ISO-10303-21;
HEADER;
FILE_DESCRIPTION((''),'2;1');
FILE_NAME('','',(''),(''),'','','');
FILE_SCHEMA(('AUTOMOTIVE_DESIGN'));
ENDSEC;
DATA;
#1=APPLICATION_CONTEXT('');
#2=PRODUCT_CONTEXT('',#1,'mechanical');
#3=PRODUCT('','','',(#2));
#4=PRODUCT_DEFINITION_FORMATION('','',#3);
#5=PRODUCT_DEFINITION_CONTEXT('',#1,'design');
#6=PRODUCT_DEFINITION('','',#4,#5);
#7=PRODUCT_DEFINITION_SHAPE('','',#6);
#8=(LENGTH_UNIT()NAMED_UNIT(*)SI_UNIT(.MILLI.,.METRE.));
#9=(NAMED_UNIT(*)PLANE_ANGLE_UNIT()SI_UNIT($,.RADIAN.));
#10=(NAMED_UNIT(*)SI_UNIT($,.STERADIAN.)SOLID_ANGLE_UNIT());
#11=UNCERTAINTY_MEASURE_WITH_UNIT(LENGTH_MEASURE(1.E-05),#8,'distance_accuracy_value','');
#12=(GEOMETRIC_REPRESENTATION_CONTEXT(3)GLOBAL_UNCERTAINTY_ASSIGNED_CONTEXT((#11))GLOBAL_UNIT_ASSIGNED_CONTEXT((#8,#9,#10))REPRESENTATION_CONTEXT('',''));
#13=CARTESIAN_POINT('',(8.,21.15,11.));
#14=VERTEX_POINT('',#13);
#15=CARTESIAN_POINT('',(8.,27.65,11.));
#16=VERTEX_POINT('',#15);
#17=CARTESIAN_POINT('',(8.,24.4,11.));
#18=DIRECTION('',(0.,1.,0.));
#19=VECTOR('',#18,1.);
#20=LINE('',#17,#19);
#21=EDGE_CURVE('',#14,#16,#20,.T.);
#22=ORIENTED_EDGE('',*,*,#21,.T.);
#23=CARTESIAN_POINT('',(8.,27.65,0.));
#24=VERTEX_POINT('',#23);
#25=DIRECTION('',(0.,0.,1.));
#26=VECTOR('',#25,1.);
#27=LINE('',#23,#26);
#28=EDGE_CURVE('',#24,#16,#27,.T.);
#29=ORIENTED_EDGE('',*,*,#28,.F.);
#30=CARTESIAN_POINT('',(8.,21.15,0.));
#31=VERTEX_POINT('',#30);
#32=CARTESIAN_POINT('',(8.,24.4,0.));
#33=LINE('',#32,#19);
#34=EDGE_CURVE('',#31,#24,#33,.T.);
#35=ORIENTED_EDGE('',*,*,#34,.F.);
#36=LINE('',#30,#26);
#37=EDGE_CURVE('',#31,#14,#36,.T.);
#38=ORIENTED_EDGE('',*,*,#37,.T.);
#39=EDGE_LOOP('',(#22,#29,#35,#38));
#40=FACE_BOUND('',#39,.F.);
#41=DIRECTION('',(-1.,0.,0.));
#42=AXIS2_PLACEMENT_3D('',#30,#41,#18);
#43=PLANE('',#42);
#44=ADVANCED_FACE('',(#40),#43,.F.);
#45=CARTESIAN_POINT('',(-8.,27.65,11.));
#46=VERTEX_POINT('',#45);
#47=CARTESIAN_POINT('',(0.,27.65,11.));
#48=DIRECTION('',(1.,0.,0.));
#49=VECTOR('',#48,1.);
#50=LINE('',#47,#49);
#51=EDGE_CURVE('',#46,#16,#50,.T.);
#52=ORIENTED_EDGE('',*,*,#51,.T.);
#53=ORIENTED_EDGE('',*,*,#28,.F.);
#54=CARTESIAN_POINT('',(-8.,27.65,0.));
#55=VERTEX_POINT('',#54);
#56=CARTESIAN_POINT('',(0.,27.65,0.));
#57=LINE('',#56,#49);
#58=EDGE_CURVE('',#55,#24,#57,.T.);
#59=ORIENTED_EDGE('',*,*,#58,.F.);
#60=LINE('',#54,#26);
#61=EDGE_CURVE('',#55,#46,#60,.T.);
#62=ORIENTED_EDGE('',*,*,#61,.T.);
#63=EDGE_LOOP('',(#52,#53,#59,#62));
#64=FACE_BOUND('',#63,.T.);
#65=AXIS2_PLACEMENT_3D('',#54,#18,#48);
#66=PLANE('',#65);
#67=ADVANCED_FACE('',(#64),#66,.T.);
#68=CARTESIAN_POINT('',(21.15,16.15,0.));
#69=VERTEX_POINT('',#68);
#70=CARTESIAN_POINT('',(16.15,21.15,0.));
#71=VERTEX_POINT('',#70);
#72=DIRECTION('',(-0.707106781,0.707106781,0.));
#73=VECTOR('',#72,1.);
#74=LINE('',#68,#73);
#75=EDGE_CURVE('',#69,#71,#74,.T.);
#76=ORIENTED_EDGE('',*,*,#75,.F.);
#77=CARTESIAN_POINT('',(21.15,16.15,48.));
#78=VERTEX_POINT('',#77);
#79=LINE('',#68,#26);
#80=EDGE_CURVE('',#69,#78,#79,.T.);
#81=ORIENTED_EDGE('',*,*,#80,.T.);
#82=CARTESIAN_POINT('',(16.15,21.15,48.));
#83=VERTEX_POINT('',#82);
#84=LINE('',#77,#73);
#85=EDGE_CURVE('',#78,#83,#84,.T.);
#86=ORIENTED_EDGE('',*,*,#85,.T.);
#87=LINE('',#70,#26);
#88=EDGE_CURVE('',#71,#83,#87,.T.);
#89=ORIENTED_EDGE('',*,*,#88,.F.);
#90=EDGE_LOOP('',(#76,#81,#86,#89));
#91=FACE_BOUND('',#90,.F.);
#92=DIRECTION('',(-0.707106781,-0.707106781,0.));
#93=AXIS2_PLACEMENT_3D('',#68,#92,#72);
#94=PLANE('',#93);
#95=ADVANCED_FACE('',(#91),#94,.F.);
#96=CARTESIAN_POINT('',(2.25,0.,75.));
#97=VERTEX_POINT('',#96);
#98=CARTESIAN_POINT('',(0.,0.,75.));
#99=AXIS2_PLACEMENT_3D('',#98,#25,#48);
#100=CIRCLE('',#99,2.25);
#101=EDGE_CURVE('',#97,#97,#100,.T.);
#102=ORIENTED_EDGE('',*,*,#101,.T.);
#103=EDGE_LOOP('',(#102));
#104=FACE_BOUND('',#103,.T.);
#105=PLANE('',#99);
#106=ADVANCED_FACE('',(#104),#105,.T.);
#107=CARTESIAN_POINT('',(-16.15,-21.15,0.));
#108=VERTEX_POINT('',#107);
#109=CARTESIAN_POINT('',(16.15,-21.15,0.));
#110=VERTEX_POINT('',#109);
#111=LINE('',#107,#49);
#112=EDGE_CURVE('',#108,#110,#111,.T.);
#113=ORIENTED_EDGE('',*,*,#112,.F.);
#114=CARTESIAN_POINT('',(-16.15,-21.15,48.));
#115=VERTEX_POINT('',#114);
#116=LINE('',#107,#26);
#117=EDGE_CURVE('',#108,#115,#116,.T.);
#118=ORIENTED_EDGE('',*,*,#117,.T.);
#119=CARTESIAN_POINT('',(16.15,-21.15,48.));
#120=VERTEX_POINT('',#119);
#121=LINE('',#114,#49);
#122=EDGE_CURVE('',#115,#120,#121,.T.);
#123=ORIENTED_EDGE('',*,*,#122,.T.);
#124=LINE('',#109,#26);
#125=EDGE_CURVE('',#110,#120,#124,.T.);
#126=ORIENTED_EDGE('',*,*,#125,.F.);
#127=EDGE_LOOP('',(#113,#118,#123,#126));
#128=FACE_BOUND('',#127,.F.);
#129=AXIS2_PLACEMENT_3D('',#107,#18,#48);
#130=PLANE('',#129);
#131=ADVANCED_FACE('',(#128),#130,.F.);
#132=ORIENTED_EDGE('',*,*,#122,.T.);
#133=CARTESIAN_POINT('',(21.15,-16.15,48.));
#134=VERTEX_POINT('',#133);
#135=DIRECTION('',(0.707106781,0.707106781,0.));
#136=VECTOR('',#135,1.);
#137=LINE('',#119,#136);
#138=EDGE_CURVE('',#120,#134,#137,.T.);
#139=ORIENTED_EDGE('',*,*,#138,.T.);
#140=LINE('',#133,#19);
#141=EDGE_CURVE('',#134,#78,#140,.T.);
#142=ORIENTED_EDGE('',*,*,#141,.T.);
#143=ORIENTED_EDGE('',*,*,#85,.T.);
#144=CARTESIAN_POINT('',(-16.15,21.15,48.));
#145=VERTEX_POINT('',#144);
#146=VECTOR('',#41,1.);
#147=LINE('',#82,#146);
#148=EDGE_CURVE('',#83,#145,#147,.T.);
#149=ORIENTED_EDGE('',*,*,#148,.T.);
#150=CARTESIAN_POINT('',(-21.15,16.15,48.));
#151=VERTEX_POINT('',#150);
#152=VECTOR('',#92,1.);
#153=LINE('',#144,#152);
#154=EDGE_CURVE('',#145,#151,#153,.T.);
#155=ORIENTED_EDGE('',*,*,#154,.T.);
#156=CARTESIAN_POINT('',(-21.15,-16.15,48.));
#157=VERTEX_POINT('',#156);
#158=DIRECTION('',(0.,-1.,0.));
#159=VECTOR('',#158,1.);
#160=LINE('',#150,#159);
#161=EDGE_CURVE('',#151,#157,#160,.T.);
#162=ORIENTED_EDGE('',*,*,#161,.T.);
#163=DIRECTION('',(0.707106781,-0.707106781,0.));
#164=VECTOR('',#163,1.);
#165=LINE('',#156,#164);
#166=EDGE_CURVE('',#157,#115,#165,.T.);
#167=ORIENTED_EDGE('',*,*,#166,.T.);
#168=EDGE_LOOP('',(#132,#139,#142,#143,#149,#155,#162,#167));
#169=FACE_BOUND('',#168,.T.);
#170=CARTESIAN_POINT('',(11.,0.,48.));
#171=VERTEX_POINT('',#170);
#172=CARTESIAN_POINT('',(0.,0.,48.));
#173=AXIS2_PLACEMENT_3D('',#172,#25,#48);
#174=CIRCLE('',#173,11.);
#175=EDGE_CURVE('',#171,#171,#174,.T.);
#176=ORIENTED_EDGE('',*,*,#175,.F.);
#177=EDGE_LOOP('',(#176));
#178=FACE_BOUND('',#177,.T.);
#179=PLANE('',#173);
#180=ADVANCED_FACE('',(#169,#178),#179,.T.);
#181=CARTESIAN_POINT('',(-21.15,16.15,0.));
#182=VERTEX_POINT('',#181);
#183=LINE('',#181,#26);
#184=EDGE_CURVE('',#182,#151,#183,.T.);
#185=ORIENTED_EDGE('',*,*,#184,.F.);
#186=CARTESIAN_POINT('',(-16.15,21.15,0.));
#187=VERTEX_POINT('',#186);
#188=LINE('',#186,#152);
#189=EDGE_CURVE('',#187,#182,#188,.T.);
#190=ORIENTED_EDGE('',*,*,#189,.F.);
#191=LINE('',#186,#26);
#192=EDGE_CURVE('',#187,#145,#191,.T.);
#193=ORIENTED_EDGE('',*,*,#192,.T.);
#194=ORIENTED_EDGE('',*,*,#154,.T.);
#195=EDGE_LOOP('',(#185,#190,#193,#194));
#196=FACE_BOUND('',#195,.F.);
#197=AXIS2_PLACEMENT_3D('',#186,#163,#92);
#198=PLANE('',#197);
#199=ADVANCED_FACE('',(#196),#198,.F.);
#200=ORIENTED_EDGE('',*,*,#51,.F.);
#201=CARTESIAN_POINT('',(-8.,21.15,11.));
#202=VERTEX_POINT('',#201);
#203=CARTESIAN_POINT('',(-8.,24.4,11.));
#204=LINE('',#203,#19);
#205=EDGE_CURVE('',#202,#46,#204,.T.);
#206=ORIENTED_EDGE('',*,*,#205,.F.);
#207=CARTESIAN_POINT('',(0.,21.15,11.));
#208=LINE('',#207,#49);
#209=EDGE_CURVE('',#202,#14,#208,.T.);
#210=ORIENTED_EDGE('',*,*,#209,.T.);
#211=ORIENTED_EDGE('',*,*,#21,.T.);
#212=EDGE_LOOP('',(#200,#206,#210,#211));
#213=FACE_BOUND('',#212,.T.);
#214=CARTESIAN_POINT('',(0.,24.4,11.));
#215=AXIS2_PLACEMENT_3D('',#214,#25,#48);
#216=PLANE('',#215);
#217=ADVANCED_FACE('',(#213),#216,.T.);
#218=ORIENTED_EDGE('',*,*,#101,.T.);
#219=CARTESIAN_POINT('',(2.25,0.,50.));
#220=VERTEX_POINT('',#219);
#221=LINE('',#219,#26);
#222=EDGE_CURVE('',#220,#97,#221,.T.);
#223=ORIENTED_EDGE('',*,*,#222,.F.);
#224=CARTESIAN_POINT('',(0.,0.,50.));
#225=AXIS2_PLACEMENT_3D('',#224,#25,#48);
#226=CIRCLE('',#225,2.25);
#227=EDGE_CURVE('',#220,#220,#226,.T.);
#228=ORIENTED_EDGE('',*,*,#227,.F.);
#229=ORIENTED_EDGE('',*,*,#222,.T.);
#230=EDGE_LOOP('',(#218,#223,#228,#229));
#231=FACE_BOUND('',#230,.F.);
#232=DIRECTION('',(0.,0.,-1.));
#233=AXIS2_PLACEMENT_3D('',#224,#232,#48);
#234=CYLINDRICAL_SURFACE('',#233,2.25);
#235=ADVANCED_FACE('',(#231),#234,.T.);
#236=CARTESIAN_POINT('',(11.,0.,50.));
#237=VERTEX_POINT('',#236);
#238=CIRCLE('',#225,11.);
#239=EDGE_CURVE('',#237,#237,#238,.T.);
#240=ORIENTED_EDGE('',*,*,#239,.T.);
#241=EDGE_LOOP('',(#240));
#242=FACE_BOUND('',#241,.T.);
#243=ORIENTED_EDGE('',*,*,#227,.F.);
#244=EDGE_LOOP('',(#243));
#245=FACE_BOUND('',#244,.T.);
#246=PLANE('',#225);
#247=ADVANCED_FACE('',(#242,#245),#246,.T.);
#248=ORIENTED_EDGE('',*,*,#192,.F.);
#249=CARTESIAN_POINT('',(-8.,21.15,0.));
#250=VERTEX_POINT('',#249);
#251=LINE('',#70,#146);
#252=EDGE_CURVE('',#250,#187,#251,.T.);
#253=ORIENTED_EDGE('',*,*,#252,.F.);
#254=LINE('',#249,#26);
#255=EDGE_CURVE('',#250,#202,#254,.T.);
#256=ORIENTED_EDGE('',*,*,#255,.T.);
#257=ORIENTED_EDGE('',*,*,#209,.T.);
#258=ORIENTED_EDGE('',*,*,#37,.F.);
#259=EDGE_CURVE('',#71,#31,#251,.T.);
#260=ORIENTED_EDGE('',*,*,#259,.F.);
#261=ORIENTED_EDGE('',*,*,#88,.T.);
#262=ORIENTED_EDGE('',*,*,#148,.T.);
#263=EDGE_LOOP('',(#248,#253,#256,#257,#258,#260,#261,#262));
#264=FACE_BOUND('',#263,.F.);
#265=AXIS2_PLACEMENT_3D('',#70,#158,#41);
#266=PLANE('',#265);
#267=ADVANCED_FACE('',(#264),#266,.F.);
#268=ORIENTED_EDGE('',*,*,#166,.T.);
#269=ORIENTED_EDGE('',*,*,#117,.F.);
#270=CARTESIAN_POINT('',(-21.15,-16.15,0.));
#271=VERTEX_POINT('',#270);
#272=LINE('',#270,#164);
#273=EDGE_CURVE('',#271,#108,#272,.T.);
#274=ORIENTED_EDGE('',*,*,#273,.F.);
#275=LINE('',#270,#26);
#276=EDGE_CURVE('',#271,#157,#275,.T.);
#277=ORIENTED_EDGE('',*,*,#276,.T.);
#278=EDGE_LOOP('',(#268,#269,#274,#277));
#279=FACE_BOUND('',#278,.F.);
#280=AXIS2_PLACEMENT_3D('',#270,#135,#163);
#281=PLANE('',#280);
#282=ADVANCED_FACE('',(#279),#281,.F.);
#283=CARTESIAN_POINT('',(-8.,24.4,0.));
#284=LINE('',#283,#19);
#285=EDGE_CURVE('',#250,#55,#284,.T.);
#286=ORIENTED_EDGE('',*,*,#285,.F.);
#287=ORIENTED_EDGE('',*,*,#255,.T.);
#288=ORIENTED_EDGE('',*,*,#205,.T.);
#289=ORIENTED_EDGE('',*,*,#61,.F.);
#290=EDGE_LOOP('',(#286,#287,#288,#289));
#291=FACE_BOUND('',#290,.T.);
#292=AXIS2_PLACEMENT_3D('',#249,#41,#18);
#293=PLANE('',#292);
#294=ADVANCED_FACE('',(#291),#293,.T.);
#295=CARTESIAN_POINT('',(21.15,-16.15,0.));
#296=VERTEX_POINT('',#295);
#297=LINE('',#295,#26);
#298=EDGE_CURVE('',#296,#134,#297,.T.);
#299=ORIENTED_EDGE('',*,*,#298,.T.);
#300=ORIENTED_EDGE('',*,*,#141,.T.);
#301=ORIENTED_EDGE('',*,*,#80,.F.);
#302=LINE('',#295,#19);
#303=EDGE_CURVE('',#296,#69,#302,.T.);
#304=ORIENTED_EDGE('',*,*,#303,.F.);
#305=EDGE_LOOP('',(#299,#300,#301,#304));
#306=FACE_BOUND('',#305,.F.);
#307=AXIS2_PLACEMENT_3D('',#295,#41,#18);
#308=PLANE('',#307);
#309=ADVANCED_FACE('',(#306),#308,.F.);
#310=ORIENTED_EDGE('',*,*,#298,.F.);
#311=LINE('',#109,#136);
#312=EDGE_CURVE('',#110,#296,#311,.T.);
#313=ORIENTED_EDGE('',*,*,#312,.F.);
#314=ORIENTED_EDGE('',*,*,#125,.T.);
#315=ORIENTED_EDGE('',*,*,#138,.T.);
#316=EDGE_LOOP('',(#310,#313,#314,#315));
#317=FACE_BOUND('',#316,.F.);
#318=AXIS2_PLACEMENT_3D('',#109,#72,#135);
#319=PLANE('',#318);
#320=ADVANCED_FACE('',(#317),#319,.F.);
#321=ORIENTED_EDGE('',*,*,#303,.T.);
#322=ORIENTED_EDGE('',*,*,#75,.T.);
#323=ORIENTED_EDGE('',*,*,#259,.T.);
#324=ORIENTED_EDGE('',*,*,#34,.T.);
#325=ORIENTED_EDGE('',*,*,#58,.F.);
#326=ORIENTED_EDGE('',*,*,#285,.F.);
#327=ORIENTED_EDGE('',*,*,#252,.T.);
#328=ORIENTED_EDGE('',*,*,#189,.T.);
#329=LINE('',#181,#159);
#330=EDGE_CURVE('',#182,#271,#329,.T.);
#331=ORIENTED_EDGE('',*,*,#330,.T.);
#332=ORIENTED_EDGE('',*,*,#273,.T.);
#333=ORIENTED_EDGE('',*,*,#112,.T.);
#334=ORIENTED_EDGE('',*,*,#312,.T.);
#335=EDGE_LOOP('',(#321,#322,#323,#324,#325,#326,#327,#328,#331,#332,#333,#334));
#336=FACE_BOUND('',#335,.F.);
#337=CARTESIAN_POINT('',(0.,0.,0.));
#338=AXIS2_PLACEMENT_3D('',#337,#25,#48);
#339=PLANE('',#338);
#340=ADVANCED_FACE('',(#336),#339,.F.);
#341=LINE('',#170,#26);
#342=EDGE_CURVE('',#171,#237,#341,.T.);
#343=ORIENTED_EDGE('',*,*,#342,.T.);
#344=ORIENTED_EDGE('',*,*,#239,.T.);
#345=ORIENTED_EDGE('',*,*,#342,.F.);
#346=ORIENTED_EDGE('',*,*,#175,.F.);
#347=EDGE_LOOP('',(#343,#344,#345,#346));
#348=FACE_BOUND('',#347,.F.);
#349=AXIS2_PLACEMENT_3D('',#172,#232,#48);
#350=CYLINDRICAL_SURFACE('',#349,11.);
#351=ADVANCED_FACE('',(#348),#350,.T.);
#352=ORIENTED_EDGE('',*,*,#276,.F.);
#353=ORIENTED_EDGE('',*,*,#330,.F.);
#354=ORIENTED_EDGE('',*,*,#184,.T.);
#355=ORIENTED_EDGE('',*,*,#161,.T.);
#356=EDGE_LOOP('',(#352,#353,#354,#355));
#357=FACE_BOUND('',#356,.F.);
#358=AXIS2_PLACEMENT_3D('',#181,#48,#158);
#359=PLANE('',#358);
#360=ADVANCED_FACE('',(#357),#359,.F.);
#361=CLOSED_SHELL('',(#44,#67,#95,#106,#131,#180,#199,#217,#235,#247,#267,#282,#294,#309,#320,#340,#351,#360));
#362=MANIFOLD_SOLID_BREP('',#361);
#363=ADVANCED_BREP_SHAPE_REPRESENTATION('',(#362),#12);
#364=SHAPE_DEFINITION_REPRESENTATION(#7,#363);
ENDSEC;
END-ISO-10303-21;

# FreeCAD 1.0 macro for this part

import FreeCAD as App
import Part
import Sketcher

V = App.Vector


def add_polygon(sketch, points):
    """Adds a closed chain of lines whose ends are joined by coincident constraints."""
    first, n = sketch.GeometryCount, len(points)
    for a, b in zip(points, points[1:] + points[:1]):
        sketch.addGeometry(Part.LineSegment(App.Vector(*a, 0), App.Vector(*b, 0)), False)
    for i in range(n):
        sketch.addConstraint(Sketcher.Constraint("Coincident", first + i, 2, first + (i + 1) % n, 1))

doc = App.newDocument("Part")
params = doc.addObject("Spreadsheet::Sheet", "Params")
for row, (alias, value) in enumerate([
    ("sketch1_width", "32.3 mm"),
    ("pad1_length", "48 mm"),
    ("sketch2_width", "16 mm"),
    ("sketch2_height", "6.5 mm"),
    ("pad2_length", "11 mm"),
    ("sketch3_diameter", "22 mm"),
    ("pad3_length", "2 mm"),
    ("sketch4_diameter", "4.5 mm"),
    ("pad4_length", "25 mm"),
], start=1):
    params.set(f"A{row}", alias)
    params.set(f"B{row}", "=" + value)
    params.setAlias(f"B{row}", alias)

body = doc.addObject("PartDesign::Body", "Body")

# Sketch on XY plane
sketch1 = doc.addObject("Sketcher::SketchObject", "Sketch")
body.addObject(sketch1)
sketch1.AttachmentSupport = (doc.XY_Plane, [""])
sketch1.MapMode = "FlatFace"
add_polygon(sketch1, [(16.15, 21.15), (-16.15, 21.15), (-21.15, 16.15), (-21.15, -16.15), (-16.15, -21.15), (16.15, -21.15), (21.15, -16.15), (21.15, 16.15)])  # lines 0-7
sketch1.addConstraint(Sketcher.Constraint("Horizontal", 0))
sketch1.addConstraint(Sketcher.Constraint("Vertical", 2))
sketch1.addConstraint(Sketcher.Constraint("Horizontal", 4))
sketch1.addConstraint(Sketcher.Constraint("Vertical", 6))
sketch1.addConstraint(Sketcher.Constraint("Symmetric", 0, 2, 4, 2, -1, 1))
sketch1.addConstraint(Sketcher.Constraint("Symmetric", 1, 2, 5, 2, -1, 1))
sketch1.addConstraint(Sketcher.Constraint("Perpendicular", 1, 3))
sketch1.addConstraint(Sketcher.Constraint("Perpendicular", 5, 7))
sketch1.addConstraint(Sketcher.Constraint("Horizontal", 2, 2, 5, 2))
sketch1.addConstraint(Sketcher.Constraint("Horizontal", 1, 2, 6, 2))
sketch1.addConstraint(Sketcher.Constraint("Vertical", 0, 2, 3, 2))
sketch1.addConstraint(Sketcher.Constraint("Equal", 4, 2))
sketch1.addConstraint(Sketcher.Constraint("DistanceX", 0, 2, 0, 1, 32.3))
sketch1.addConstraint(Sketcher.Constraint("DistanceX", 1, 2, 0, 2, 5.0))
sketch1.setExpression("Constraints[20]", "Params.sketch1_width")
pad1 = doc.addObject("PartDesign::Pad", "Pad")
body.addObject(pad1)
pad1.Profile = sketch1
pad1.setExpression("Length", "Params.pad1_length")

# Sketch on XY plane
sketch2 = doc.addObject("Sketcher::SketchObject", "Sketch001")
body.addObject(sketch2)
sketch2.AttachmentSupport = (doc.XY_Plane, [""])
sketch2.MapMode = "FlatFace"
add_polygon(sketch2, [(-8, 27.65), (-8, 21.15), (8, 21.15), (8, 27.65)])  # lines 0-3
sketch2.addConstraint(Sketcher.Constraint("Vertical", 0))
sketch2.addConstraint(Sketcher.Constraint("Horizontal", 1))
sketch2.addConstraint(Sketcher.Constraint("Vertical", 2))
sketch2.addConstraint(Sketcher.Constraint("Horizontal", 3))
sketch2.addConstraint(Sketcher.Constraint("DistanceX", 1, 1, 1, 2, 16.0))
sketch2.addConstraint(Sketcher.Constraint("DistanceY", 0, 2, 0, 1, 6.5))
sketch2.addConstraint(Sketcher.Constraint("DistanceX", 0, 2, -1, 1, 8.0))
sketch2.addConstraint(Sketcher.Constraint("DistanceY", -1, 1, 0, 2, 21.15))
sketch2.setExpression("Constraints[8]", "Params.sketch2_width")
sketch2.setExpression("Constraints[9]", "Params.sketch2_height")
pad2 = doc.addObject("PartDesign::Pad", "Pad001")
body.addObject(pad2)
pad2.Profile = sketch2
pad2.setExpression("Length", "Params.pad2_length")

# Sketch on XY plane
sketch3 = doc.addObject("Sketcher::SketchObject", "Sketch002")
body.addObject(sketch3)
sketch3.AttachmentSupport = (doc.XY_Plane, [""])
sketch3.MapMode = "FlatFace"
sketch3.AttachmentOffset = App.Placement(V(0, 0, 48), App.Rotation())
sketch3.addGeometry(Part.Circle(V(0, 0, 0), V(0, 0, 1), 11), False)
sketch3.addConstraint(Sketcher.Constraint("Coincident", 0, 3, -1, 1))
sketch3.addConstraint(Sketcher.Constraint("Diameter", 0, 22.0))
sketch3.setExpression("Constraints[1]", "Params.sketch3_diameter")
pad3 = doc.addObject("PartDesign::Pad", "Pad002")
body.addObject(pad3)
pad3.Profile = sketch3
pad3.setExpression("Length", "Params.pad3_length")

# Sketch on XY plane
sketch4 = doc.addObject("Sketcher::SketchObject", "Sketch003")
body.addObject(sketch4)
sketch4.AttachmentSupport = (doc.XY_Plane, [""])
sketch4.MapMode = "FlatFace"
sketch4.AttachmentOffset = App.Placement(V(0, 0, 50), App.Rotation())
sketch4.addGeometry(Part.Circle(V(0, 0, 0), V(0, 0, 1), 2.25), False)
sketch4.addConstraint(Sketcher.Constraint("Coincident", 0, 3, -1, 1))
sketch4.addConstraint(Sketcher.Constraint("Diameter", 0, 4.5))
sketch4.setExpression("Constraints[1]", "Params.sketch4_diameter")
pad4 = doc.addObject("PartDesign::Pad", "Pad003")
body.addObject(pad4)
pad4.Profile = sketch4
pad4.setExpression("Length", "Params.pad4_length")

doc.recompute()
